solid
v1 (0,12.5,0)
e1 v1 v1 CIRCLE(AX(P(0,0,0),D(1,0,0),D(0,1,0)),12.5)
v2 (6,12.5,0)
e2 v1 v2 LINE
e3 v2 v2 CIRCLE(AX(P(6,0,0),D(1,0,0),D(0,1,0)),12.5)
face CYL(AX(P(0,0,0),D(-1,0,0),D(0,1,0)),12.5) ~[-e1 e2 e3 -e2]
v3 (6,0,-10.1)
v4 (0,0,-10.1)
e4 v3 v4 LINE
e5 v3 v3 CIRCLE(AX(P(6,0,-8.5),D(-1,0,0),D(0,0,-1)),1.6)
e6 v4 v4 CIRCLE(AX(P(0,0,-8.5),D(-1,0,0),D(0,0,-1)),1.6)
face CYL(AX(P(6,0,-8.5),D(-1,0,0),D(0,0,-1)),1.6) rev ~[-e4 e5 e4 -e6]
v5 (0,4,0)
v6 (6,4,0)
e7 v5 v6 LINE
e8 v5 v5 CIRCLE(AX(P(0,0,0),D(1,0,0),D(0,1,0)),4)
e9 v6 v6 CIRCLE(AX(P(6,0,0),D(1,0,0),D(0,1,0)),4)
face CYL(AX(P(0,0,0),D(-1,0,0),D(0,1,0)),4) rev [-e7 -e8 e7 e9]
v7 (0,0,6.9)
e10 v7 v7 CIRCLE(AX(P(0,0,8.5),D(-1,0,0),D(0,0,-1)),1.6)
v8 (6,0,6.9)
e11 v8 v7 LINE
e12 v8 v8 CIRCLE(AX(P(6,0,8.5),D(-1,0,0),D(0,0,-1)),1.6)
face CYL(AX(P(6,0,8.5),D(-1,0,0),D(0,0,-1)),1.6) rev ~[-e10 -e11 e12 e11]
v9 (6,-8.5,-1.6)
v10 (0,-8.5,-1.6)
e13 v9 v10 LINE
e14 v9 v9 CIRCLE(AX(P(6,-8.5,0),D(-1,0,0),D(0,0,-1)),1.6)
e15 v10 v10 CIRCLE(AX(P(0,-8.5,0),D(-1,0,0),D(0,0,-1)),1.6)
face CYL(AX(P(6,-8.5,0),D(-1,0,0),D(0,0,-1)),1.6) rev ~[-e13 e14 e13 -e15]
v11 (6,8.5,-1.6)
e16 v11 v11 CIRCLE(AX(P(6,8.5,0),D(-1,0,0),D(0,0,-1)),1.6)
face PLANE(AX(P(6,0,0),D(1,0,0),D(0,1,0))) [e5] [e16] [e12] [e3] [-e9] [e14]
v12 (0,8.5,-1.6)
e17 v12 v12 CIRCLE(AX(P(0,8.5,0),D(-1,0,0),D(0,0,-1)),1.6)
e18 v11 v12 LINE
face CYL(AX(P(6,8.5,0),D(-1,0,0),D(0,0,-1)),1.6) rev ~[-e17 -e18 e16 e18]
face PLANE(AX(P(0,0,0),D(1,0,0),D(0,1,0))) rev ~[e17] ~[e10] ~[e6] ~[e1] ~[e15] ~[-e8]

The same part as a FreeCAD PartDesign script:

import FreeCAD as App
import Part
import Sketcher

V = App.Vector
Q = App.Units.Quantity

doc = App.newDocument("Part")
body = doc.addObject("PartDesign::Body", "Body")

sketch1 = body.newObject("Sketcher::SketchObject", "Sketch")
sketch1.AttachmentSupport = (doc.getObject("YZ_Plane"), [""])
sketch1.MapMode = "FlatFace"
sketch1.addGeometry(Part.Circle(V(0, 0, 0), V(0, 0, 1), 12.5), False)
sketch1.addGeometry(Part.Circle(V(0, 0, 0), V(0, 0, 1), 4), False)
sketch1.addConstraint(Sketcher.Constraint("Coincident", 0, 3, -1, 1))
sketch1.addConstraint(Sketcher.Constraint("Coincident", 1, 3, -1, 1))
sketch1.addConstraint(Sketcher.Constraint("Diameter", 0, Q("25 mm")))
sketch1.addConstraint(Sketcher.Constraint("Diameter", 1, Q("8 mm")))
pad1 = body.newObject("PartDesign::Pad", "Pad")
pad1.Profile = sketch1
pad1.Length = 6

sketch2 = body.newObject("Sketcher::SketchObject", "Sketch001")
sketch2.AttachmentSupport = (doc.getObject("YZ_Plane"), [""])
sketch2.MapMode = "FlatFace"
sketch2.AttachmentOffset = App.Placement(V(0, 0, 6), App.Rotation())
sketch2.addGeometry(Part.Circle(V(8.5, 0, 0), V(0, 0, 1), 1.6), False)
sketch2.addGeometry(Part.Circle(V(0, 8.5, 0), V(0, 0, 1), 1.6), False)
sketch2.addGeometry(Part.Circle(V(-8.5, 0, 0), V(0, 0, 1), 1.6), False)
sketch2.addGeometry(Part.Circle(V(0, -8.5, 0), V(0, 0, 1), 1.6), False)
sketch2.addConstraint(Sketcher.Constraint("Equal", 0, 1))
sketch2.addConstraint(Sketcher.Constraint("Equal", 1, 2))
sketch2.addConstraint(Sketcher.Constraint("Equal", 2, 3))
sketch2.addConstraint(Sketcher.Constraint("Symmetric", 0, 3, 2, 3, -1, 1))
sketch2.addConstraint(Sketcher.Constraint("Symmetric", 1, 3, 3, 3, -1, 1))
sketch2.addConstraint(Sketcher.Constraint("PointOnObject", 0, 3, -1))
sketch2.addConstraint(Sketcher.Constraint("PointOnObject", 1, 3, -2))
sketch2.addConstraint(Sketcher.Constraint("Diameter", 0, Q("3.2 mm")))
sketch2.addConstraint(Sketcher.Constraint("DistanceX", 2, 3, 0, 3, Q("17 mm")))
sketch2.addConstraint(Sketcher.Constraint("DistanceY", 3, 3, 1, 3, Q("17 mm")))
doc.recompute()
hole = body.newObject("PartDesign::Hole", "Hole")
hole.Profile = sketch2
hole.ThreadType = "None"
hole.Diameter = 3.2
hole.DepthType = "ThroughAll"

doc.recompute()
